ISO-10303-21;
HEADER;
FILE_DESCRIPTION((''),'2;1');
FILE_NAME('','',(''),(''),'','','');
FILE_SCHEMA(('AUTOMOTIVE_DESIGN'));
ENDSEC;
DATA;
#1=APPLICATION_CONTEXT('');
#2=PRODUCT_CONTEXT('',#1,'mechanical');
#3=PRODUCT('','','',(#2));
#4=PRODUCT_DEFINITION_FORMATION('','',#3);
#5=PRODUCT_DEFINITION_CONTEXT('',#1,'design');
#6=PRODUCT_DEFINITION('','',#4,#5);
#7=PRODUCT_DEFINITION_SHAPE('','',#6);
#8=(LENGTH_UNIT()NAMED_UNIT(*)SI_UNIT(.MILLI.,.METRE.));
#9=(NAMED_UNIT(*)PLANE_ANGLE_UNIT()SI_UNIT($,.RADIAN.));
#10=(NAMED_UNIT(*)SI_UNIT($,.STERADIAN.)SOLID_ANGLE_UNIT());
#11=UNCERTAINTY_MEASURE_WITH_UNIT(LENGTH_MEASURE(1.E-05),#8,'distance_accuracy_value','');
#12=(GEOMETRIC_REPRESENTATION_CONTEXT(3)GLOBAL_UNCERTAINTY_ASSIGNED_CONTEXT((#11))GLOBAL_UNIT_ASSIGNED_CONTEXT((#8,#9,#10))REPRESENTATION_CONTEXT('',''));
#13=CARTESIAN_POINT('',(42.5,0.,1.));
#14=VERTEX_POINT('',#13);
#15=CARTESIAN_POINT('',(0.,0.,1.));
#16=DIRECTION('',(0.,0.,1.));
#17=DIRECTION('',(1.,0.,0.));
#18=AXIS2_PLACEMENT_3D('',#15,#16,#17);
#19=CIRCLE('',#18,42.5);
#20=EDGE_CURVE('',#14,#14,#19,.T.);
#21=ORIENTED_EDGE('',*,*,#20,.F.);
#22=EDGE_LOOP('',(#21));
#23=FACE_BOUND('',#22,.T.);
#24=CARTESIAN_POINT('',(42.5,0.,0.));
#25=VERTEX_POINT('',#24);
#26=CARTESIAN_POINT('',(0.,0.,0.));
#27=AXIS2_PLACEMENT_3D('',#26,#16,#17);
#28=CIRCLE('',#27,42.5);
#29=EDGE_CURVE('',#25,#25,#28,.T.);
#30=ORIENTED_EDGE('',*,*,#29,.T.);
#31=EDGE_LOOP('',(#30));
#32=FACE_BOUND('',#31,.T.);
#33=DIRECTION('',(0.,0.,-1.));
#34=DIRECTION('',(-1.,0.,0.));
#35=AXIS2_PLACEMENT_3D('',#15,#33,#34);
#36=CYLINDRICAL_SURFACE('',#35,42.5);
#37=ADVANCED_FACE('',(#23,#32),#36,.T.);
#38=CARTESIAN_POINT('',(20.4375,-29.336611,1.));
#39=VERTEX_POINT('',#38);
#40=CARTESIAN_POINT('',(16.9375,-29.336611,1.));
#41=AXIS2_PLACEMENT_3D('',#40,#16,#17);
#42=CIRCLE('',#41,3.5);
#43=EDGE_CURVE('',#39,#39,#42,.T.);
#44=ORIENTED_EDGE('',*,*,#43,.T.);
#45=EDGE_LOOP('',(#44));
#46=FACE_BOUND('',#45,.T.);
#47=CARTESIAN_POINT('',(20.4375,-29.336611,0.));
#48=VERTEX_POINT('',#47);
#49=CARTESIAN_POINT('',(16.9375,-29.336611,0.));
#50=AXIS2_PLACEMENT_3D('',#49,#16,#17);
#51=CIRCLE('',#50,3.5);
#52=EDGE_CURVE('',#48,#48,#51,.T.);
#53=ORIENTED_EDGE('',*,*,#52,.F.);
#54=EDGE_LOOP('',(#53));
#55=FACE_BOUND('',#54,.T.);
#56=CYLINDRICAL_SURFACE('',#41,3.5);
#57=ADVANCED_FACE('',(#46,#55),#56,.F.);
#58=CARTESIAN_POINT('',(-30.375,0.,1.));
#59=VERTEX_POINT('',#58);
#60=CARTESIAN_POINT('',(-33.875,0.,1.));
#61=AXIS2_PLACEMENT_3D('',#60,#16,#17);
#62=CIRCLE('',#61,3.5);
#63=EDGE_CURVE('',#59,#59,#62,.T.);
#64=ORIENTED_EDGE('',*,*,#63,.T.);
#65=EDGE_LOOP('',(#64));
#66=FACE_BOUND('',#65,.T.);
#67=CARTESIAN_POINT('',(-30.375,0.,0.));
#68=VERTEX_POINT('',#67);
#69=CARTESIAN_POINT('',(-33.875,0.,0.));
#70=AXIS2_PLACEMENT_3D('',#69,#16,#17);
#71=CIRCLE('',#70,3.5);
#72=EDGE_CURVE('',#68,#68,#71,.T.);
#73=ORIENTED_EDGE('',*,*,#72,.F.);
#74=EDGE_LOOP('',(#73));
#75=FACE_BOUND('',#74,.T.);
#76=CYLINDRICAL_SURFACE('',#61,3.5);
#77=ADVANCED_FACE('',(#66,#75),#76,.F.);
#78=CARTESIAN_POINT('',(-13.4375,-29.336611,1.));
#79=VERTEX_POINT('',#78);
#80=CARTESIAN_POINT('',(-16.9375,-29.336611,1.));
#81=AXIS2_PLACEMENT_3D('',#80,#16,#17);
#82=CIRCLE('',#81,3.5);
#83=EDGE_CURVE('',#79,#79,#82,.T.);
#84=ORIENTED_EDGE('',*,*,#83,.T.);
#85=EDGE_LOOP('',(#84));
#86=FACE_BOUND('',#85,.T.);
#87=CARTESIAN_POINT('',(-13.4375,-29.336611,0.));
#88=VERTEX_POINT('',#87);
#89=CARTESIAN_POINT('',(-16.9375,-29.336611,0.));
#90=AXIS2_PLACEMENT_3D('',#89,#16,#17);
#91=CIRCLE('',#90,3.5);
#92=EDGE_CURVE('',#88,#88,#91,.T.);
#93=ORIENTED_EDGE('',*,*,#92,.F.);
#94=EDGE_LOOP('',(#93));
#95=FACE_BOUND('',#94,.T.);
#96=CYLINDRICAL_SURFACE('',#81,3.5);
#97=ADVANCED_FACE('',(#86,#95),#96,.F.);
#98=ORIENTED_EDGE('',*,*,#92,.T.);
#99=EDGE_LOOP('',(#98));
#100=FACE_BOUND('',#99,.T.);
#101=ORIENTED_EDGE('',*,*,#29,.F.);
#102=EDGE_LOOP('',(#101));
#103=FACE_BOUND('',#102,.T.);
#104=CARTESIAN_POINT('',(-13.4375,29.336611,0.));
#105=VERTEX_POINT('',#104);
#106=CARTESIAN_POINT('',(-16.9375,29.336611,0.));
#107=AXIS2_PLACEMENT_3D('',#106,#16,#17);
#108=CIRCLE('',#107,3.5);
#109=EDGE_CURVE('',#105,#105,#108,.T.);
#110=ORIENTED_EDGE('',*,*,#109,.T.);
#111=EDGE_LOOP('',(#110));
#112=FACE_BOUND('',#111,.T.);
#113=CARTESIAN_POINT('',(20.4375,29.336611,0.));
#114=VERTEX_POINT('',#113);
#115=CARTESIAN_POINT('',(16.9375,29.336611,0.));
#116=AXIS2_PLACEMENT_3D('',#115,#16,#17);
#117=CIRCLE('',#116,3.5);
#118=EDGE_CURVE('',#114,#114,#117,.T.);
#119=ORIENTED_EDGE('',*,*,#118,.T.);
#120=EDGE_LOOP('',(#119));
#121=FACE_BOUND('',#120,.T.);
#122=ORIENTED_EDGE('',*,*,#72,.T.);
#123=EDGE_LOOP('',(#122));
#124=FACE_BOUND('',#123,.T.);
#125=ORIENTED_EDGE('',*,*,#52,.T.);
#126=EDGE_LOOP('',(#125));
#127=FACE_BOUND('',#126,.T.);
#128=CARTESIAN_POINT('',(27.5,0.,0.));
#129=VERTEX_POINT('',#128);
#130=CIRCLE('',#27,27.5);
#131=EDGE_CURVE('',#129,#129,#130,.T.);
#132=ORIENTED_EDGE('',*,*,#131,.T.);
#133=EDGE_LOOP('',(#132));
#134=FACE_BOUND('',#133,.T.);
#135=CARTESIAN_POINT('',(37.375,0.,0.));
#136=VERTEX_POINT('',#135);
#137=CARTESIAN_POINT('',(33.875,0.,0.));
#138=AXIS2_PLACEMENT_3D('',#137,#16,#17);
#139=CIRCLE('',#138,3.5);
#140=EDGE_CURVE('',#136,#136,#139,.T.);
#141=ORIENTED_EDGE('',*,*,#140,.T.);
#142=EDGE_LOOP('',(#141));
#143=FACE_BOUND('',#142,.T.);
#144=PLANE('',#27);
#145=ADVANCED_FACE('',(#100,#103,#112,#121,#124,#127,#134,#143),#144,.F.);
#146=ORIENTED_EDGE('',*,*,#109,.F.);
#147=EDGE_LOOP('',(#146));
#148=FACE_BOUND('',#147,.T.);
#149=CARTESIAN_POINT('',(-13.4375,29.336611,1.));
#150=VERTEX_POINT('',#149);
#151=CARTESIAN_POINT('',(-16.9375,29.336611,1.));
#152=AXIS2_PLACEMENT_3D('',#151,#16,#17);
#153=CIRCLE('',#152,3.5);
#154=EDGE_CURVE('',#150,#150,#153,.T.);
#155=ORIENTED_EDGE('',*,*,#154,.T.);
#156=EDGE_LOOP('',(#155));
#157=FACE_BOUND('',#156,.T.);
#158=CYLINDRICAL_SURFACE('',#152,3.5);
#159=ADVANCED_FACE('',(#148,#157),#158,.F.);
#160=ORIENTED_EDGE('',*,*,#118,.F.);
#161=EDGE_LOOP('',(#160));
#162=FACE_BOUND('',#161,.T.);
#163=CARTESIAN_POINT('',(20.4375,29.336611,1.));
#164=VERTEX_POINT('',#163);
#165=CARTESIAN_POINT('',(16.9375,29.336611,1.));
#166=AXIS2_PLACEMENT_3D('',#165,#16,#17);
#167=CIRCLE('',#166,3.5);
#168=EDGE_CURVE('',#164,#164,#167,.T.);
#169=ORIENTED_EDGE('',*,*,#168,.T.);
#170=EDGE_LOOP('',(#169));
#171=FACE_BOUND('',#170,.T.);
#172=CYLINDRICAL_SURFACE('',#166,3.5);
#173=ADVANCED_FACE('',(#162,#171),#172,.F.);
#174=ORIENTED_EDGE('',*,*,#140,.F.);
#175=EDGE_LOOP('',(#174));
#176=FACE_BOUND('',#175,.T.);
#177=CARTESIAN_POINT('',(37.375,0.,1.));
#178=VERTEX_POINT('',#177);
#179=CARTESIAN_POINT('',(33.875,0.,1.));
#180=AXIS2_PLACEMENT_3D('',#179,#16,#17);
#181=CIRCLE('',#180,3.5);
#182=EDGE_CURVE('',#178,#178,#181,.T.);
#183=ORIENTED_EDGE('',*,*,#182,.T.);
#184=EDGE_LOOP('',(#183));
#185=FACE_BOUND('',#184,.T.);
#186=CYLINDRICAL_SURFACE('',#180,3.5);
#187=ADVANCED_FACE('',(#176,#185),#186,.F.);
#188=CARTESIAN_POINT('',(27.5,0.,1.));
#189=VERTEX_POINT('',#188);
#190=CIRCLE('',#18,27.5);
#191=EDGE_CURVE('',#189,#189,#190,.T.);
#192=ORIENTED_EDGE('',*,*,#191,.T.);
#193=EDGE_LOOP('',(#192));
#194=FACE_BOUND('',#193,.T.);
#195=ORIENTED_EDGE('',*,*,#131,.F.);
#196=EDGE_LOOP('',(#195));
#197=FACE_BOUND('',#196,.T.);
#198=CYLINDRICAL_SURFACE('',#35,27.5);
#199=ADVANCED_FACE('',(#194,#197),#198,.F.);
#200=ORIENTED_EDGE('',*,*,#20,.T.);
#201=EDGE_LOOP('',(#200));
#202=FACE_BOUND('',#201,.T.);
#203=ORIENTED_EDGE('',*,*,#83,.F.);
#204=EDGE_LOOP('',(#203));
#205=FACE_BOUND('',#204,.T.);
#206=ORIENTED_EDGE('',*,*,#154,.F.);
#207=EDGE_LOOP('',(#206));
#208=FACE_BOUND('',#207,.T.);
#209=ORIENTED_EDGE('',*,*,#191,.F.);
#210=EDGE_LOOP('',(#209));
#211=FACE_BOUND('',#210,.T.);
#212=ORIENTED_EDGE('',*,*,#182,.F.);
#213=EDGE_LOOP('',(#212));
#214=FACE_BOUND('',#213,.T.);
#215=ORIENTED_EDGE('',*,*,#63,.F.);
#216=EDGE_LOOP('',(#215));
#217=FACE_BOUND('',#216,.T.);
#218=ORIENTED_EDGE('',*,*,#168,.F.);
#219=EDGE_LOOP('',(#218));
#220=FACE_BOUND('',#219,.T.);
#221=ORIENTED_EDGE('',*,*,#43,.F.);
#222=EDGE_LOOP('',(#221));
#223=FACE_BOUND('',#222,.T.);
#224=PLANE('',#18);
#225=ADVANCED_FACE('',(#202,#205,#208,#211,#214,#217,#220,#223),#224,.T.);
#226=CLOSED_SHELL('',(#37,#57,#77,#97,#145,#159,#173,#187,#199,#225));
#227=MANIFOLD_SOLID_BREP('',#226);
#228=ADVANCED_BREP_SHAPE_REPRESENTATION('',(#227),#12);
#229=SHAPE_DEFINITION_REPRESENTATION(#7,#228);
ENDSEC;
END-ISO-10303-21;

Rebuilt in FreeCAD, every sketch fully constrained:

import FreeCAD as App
import Part
import Sketcher

V = App.Vector

doc = App.newDocument("Part")
params = doc.addObject("Spreadsheet::Sheet", "Params")
for row, (alias, value) in enumerate([
    ("sketch1_diameter", "85 mm"),
    ("sketch1_diameter2", "55 mm"),
    ("pad1_length", "1 mm"),
    ("sketch2_diameter", "7 mm"),
    ("hole_diameter", "7 mm"),
], start=1):
    params.set(f"A{row}", alias)
    params.set(f"B{row}", "=" + value)
    params.setAlias(f"B{row}", alias)

body = doc.addObject("PartDesign::Body", "Body")

sketch1 = doc.addObject("Sketcher::SketchObject", "Sketch")
body.addObject(sketch1)
sketch1.AttachmentSupport = (doc.XY_Plane, [""])
sketch1.MapMode = "FlatFace"
sketch1.addGeometry(Part.Circle(V(0, 0, 0), V(0, 0, 1), 42), False)
sketch1.addGeometry(Part.Circle(V(0, 0, 0), V(0, 0, 1), 28), False)
sketch1.addConstraint(Sketcher.Constraint("Coincident", 0, 3, -1, 1))
sketch1.addConstraint(Sketcher.Constraint("Coincident", 1, 3, -1, 1))
sketch1.addConstraint(Sketcher.Constraint("Diameter", 0, 85.0))
sketch1.addConstraint(Sketcher.Constraint("Diameter", 1, 55.0))
sketch1.setExpression("Constraints[2]", "Params.sketch1_diameter")
sketch1.setExpression("Constraints[3]", "Params.sketch1_diameter2")
pad1 = doc.addObject("PartDesign::Pad", "Pad")
body.addObject(pad1)
pad1.Profile = sketch1
pad1.setExpression("Length", "Params.pad1_length")

sketch2 = doc.addObject("Sketcher::SketchObject", "Sketch001")
body.addObject(sketch2)
sketch2.AttachmentSupport = (doc.XY_Plane, [""])
sketch2.MapMode = "FlatFace"
sketch2.AttachmentOffset = App.Placement(V(0, 0, 1), App.Rotation())
sketch2.addGeometry(Part.Circle(V(-33.9, 0, 0), V(0, 0, 1), 3.5), False)
sketch2.addGeometry(Part.Circle(V(-16.9, -29.3, 0), V(0, 0, 1), 3.5), False)
sketch2.addGeometry(Part.Circle(V(16.9, -29.3, 0), V(0, 0, 1), 3.5), False)
sketch2.addGeometry(Part.Circle(V(33.9, 0, 0), V(0, 0, 1), 3.5), False)
sketch2.addGeometry(Part.Circle(V(16.9, 29.3, 0), V(0, 0, 1), 3.5), False)
sketch2.addGeometry(Part.Circle(V(-16.9, 29.3, 0), V(0, 0, 1), 3.5), False)
sketch2.addConstraint(Sketcher.Constraint("Equal", 0, 1))
sketch2.addConstraint(Sketcher.Constraint("Equal", 1, 2))
sketch2.addConstraint(Sketcher.Constraint("Equal", 2, 3))
sketch2.addConstraint(Sketcher.Constraint("Equal", 3, 4))
sketch2.addConstraint(Sketcher.Constraint("Equal", 4, 5))
sketch2.addConstraint(Sketcher.Constraint("Symmetric", 0, 3, 3, 3, -1, 1))
sketch2.addConstraint(Sketcher.Constraint("Symmetric", 1, 3, 4, 3, -1, 1))
sketch2.addConstraint(Sketcher.Constraint("Symmetric", 2, 3, 5, 3, -1, 1))
sketch2.addConstraint(Sketcher.Constraint("Symmetric", 1, 3, 2, 3, -2))
sketch2.addConstraint(Sketcher.Constraint("PointOnObject", 0, 3, -1))
sketch2.addConstraint(Sketcher.Constraint("Diameter", 0, 7.0))
sketch2.addConstraint(Sketcher.Constraint("DistanceX", 0, 3, 3, 3, 67.75))
sketch2.addConstraint(Sketcher.Constraint("DistanceX", 1, 3, 2, 3, 33.875))
sketch2.addConstraint(Sketcher.Constraint("DistanceY", 1, 3, -1, 1, 29.336611))
sketch2.setExpression("Constraints[10]", "Params.sketch2_diameter")
doc.recompute()
hole = doc.addObject("PartDesign::Hole", "Hole")
body.addObject(hole)
hole.Profile = sketch2
hole.ThreadType = "None"
hole.setExpression("Diameter", "Params.hole_diameter")
hole.DepthType = "ThroughAll"

doc.recompute()
